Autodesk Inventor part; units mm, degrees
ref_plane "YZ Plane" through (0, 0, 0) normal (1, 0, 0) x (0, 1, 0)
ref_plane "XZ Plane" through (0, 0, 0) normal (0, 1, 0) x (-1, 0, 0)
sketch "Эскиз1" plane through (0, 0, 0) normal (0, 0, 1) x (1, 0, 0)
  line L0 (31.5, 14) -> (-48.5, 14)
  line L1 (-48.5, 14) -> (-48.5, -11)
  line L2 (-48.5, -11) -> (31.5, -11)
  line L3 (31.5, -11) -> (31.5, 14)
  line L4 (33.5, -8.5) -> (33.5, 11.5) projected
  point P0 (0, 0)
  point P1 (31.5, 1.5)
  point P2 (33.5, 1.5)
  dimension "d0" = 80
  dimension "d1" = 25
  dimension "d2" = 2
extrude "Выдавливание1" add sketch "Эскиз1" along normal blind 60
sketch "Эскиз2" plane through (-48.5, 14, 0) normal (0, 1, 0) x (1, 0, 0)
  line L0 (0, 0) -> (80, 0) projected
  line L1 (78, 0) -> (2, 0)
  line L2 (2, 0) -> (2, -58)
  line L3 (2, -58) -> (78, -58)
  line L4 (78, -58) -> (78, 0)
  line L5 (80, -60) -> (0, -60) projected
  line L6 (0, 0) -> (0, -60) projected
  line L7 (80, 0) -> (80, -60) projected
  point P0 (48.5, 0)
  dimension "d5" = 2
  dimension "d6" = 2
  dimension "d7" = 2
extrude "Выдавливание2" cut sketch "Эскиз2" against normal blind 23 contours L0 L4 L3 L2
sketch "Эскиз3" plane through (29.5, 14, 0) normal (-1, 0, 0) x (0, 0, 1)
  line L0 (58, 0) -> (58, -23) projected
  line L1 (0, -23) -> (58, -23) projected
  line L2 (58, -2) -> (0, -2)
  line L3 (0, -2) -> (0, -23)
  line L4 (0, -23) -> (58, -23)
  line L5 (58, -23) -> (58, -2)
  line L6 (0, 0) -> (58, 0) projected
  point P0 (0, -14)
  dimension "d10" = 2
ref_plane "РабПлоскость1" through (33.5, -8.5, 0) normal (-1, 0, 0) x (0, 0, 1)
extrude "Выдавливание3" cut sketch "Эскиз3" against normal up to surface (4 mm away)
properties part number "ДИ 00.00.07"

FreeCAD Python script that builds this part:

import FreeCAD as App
import Part
import Sketcher

V = App.Vector


def add_polygon(sketch, points):
    """Adds a closed chain of lines whose ends are joined by coincident constraints."""
    first, n = sketch.GeometryCount, len(points)
    for a, b in zip(points, points[1:] + points[:1]):
        sketch.addGeometry(Part.LineSegment(App.Vector(*a, 0), App.Vector(*b, 0)), False)
    for i in range(n):
        sketch.addConstraint(Sketcher.Constraint("Coincident", first + i, 2, first + (i + 1) % n, 1))

doc = App.newDocument("Part")
body = doc.addObject("PartDesign::Body", "Body")

# Sketch on XY plane
sketch1 = doc.addObject("Sketcher::SketchObject", "Sketch")
body.addObject(sketch1)
sketch1.AttachmentSupport = (doc.XY_Plane, [""])
sketch1.MapMode = "FlatFace"
add_polygon(sketch1, [(32, -11), (32, 14), (-48, 14), (-48, -11)])  # lines 0-3
sketch1.addConstraint(Sketcher.Constraint("Vertical", 0))
sketch1.addConstraint(Sketcher.Constraint("Horizontal", 1))
sketch1.addConstraint(Sketcher.Constraint("Vertical", 2))
sketch1.addConstraint(Sketcher.Constraint("Horizontal", 3))
sketch1.addConstraint(Sketcher.Constraint("DistanceX", 1, 2, 1, 1, 80.0))
sketch1.addConstraint(Sketcher.Constraint("DistanceY", 0, 1, 0, 2, 25.0))
sketch1.addConstraint(Sketcher.Constraint("DistanceY", -1, 1, 0, 2, 14.0))
sketch1.addConstraint(Sketcher.Constraint("DistanceX", -1, 1, 0, 2, 31.5))
pad1 = doc.addObject("PartDesign::Pad", "Pad")
body.addObject(pad1)
pad1.Profile = sketch1
pad1.Length = 60

# Sketch on XZ plane
sketch2 = doc.addObject("Sketcher::SketchObject", "Sketch001")
body.addObject(sketch2)
sketch2.AttachmentSupport = (doc.XZ_Plane, [""])
sketch2.MapMode = "FlatFace"
sketch2.AttachmentOffset = App.Placement(V(0, 0, -14), App.Rotation())
add_polygon(sketch2, [(30, 0), (-46, 0), (-46, 58), (30, 58)])  # lines 0-3
sketch2.addConstraint(Sketcher.Constraint("Horizontal", 0))
sketch2.addConstraint(Sketcher.Constraint("Vertical", 1))
sketch2.addConstraint(Sketcher.Constraint("Horizontal", 2))
sketch2.addConstraint(Sketcher.Constraint("Vertical", 3))
sketch2.addConstraint(Sketcher.Constraint("PointOnObject", 0, 2, -1))
sketch2.addConstraint(Sketcher.Constraint("DistanceX", 0, 2, 0, 1, 76.0))
sketch2.addConstraint(Sketcher.Constraint("DistanceY", 1, 1, 1, 2, 58.0))
sketch2.addConstraint(Sketcher.Constraint("DistanceX", 0, 2, -1, 1, 46.5))
pocket1 = doc.addObject("PartDesign::Pocket", "Pocket")
body.addObject(pocket1)
pocket1.Profile = sketch2
pocket1.Length = 23
pocket1.Reversed = True

# Sketch on YZ plane
sketch3 = doc.addObject("Sketcher::SketchObject", "Sketch002")
body.addObject(sketch3)
sketch3.AttachmentSupport = (doc.YZ_Plane, [""])
sketch3.MapMode = "FlatFace"
sketch3.AttachmentOffset = App.Placement(V(0, 0, 29.5), App.Rotation())
add_polygon(sketch3, [(-9, 58), (12, 58), (12, 0), (-9, 0)])  # lines 0-3
sketch3.addConstraint(Sketcher.Constraint("Horizontal", 0))
sketch3.addConstraint(Sketcher.Constraint("Vertical", 1))
sketch3.addConstraint(Sketcher.Constraint("Horizontal", 2))
sketch3.addConstraint(Sketcher.Constraint("Vertical", 3))
sketch3.addConstraint(Sketcher.Constraint("PointOnObject", 1, 2, -1))
sketch3.addConstraint(Sketcher.Constraint("DistanceX", 0, 1, 0, 2, 21.0))
sketch3.addConstraint(Sketcher.Constraint("DistanceY", 1, 2, 1, 1, 58.0))
sketch3.addConstraint(Sketcher.Constraint("DistanceX", -1, 1, 0, 2, 12.0))
pocket2 = doc.addObject("PartDesign::Pocket", "Pocket001")
body.addObject(pocket2)
pocket2.Profile = sketch3
pocket2.Length = 4
pocket2.Reversed = True

doc.recompute()
